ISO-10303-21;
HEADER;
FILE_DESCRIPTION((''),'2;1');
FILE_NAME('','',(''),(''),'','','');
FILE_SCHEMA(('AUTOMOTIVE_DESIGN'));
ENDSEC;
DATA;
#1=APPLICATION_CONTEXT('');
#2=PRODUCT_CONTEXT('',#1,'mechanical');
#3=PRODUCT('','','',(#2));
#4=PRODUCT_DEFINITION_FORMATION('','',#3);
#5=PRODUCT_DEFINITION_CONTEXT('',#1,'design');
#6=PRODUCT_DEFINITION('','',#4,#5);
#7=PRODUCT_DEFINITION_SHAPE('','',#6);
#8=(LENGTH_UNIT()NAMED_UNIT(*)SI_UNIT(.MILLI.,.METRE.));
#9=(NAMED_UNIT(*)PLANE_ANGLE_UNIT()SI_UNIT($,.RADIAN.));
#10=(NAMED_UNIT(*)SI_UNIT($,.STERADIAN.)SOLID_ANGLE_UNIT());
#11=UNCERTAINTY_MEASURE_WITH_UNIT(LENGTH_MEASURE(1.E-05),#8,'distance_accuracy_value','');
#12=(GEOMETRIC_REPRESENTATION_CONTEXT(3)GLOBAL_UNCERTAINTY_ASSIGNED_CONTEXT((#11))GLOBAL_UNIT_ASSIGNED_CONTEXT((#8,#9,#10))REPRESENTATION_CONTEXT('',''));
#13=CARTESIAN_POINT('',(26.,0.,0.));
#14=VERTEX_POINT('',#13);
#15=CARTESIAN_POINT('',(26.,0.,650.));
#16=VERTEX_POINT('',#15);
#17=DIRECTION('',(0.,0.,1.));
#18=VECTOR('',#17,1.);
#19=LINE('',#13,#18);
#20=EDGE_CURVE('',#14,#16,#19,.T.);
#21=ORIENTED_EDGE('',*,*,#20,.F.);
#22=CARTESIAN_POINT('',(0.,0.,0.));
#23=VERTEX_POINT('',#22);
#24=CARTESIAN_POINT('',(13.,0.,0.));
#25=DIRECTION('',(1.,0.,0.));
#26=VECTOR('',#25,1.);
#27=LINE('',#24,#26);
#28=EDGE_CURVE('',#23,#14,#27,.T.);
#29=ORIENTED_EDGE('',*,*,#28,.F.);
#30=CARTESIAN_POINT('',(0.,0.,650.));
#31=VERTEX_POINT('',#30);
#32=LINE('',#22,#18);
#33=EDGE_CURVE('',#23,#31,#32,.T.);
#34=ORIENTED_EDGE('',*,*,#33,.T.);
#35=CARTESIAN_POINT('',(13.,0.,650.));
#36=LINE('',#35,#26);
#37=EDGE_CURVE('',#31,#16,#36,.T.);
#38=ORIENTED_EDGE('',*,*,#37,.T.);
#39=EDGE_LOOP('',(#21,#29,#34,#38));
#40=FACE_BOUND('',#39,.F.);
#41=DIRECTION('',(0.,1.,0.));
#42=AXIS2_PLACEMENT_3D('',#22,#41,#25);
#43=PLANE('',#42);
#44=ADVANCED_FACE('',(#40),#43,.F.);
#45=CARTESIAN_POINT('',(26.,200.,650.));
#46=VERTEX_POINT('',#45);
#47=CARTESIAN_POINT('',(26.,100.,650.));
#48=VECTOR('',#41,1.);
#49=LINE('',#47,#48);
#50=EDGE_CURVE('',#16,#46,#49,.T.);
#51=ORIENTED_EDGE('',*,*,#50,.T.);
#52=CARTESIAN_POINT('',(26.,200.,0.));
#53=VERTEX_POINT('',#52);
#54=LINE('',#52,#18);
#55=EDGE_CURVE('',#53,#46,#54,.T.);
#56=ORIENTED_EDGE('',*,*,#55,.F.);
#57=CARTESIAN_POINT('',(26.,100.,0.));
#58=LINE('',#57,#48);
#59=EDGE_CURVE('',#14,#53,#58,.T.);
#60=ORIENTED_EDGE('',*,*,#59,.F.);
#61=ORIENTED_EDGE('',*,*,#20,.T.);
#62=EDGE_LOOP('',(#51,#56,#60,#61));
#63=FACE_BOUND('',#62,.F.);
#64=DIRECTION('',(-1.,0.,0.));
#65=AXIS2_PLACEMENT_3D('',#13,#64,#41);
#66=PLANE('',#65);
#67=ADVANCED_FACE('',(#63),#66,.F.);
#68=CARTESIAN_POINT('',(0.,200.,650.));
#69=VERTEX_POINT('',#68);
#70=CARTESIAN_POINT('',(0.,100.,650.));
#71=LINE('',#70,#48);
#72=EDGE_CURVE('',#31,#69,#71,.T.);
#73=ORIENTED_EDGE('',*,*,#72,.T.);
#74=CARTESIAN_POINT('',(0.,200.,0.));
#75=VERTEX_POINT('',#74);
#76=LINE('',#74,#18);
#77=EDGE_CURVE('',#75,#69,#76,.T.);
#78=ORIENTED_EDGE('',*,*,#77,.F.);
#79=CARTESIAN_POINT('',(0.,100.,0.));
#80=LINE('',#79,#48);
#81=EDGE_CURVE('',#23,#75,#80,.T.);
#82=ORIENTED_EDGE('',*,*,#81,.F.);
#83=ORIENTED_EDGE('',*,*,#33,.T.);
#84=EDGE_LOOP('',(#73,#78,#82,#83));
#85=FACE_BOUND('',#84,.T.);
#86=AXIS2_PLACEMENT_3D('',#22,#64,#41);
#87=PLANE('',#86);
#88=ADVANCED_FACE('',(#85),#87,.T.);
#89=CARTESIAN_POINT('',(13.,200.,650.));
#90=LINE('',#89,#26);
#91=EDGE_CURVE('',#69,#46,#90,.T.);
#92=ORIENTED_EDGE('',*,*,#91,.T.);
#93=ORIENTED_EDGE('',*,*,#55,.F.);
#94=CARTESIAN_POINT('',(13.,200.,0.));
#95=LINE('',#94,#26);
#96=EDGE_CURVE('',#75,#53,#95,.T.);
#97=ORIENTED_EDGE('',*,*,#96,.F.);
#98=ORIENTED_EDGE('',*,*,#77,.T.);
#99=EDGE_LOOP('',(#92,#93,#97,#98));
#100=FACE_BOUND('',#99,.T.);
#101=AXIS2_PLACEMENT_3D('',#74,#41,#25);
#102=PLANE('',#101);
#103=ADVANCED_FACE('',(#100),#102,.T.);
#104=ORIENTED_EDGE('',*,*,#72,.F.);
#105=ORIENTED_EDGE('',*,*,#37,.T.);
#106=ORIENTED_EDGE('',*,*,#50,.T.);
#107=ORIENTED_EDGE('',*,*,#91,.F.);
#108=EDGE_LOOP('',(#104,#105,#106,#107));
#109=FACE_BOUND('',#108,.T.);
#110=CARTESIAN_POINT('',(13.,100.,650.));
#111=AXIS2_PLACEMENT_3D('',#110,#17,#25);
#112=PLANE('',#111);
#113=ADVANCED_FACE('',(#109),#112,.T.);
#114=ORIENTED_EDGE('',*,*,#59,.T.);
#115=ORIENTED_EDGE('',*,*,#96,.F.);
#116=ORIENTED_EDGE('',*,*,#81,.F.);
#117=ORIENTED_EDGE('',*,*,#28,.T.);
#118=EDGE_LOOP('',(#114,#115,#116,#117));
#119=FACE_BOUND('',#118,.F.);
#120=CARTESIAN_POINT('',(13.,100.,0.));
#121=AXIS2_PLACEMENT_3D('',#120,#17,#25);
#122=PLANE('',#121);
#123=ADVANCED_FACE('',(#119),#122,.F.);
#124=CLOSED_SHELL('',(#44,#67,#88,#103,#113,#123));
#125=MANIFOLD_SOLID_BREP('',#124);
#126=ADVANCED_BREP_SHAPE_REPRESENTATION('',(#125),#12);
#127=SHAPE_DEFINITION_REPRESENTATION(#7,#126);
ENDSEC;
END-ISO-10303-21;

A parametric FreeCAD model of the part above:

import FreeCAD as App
import Part
import Sketcher

V = App.Vector
Q = App.Units.Quantity


def add_polygon(sketch, points):
    """Adds a closed chain of lines whose ends are joined by coincident constraints."""
    first, n = sketch.GeometryCount, len(points)
    for a, b in zip(points, points[1:] + points[:1]):
        sketch.addGeometry(Part.LineSegment(App.Vector(*a, 0), App.Vector(*b, 0)), False)
    for i in range(n):
        sketch.addConstraint(Sketcher.Constraint("Coincident", first + i, 2, first + (i + 1) % n, 1))

doc = App.newDocument("Part")
params = doc.addObject("Spreadsheet::Sheet", "Params")
for row, (alias, value) in enumerate([
    ("sketch1_width", "26 mm"),
    ("sketch1_height", "200 mm"),
    ("pad1_length", "650 mm"),
], start=1):
    params.set(f"A{row}", alias)
    params.set(f"B{row}", "=" + value)
    params.setAlias(f"B{row}", alias)

body = doc.addObject("PartDesign::Body", "Body")

# Sketch on XY plane
sketch1 = doc.addObject("Sketcher::SketchObject", "Sketch")
body.addObject(sketch1)
sketch1.AttachmentSupport = (doc.XY_Plane, [""])
sketch1.MapMode = "FlatFace"
add_polygon(sketch1, [(0, 200), (0, 0), (26, 0), (26, 200)])  # lines 0-3
sketch1.addConstraint([
    Sketcher.Constraint("Vertical", 0),
    Sketcher.Constraint("Horizontal", 1),
    Sketcher.Constraint("Vertical", 2),
    Sketcher.Constraint("Horizontal", 3),
    Sketcher.Constraint("Coincident", 0, 2, -1, 1),
    Sketcher.Constraint("DistanceX", 1, 1, 1, 2, Q("26 mm")),
    Sketcher.Constraint("DistanceY", 0, 2, 0, 1, Q("200 mm")),
])
sketch1.setExpression("Constraints[9]", "Params.sketch1_width")
sketch1.setExpression("Constraints[10]", "Params.sketch1_height")
pad1 = doc.addObject("PartDesign::Pad", "Pad")
body.addObject(pad1)
pad1.Profile = sketch1
pad1.setExpression("Length", "Params.pad1_length")

doc.recompute()
